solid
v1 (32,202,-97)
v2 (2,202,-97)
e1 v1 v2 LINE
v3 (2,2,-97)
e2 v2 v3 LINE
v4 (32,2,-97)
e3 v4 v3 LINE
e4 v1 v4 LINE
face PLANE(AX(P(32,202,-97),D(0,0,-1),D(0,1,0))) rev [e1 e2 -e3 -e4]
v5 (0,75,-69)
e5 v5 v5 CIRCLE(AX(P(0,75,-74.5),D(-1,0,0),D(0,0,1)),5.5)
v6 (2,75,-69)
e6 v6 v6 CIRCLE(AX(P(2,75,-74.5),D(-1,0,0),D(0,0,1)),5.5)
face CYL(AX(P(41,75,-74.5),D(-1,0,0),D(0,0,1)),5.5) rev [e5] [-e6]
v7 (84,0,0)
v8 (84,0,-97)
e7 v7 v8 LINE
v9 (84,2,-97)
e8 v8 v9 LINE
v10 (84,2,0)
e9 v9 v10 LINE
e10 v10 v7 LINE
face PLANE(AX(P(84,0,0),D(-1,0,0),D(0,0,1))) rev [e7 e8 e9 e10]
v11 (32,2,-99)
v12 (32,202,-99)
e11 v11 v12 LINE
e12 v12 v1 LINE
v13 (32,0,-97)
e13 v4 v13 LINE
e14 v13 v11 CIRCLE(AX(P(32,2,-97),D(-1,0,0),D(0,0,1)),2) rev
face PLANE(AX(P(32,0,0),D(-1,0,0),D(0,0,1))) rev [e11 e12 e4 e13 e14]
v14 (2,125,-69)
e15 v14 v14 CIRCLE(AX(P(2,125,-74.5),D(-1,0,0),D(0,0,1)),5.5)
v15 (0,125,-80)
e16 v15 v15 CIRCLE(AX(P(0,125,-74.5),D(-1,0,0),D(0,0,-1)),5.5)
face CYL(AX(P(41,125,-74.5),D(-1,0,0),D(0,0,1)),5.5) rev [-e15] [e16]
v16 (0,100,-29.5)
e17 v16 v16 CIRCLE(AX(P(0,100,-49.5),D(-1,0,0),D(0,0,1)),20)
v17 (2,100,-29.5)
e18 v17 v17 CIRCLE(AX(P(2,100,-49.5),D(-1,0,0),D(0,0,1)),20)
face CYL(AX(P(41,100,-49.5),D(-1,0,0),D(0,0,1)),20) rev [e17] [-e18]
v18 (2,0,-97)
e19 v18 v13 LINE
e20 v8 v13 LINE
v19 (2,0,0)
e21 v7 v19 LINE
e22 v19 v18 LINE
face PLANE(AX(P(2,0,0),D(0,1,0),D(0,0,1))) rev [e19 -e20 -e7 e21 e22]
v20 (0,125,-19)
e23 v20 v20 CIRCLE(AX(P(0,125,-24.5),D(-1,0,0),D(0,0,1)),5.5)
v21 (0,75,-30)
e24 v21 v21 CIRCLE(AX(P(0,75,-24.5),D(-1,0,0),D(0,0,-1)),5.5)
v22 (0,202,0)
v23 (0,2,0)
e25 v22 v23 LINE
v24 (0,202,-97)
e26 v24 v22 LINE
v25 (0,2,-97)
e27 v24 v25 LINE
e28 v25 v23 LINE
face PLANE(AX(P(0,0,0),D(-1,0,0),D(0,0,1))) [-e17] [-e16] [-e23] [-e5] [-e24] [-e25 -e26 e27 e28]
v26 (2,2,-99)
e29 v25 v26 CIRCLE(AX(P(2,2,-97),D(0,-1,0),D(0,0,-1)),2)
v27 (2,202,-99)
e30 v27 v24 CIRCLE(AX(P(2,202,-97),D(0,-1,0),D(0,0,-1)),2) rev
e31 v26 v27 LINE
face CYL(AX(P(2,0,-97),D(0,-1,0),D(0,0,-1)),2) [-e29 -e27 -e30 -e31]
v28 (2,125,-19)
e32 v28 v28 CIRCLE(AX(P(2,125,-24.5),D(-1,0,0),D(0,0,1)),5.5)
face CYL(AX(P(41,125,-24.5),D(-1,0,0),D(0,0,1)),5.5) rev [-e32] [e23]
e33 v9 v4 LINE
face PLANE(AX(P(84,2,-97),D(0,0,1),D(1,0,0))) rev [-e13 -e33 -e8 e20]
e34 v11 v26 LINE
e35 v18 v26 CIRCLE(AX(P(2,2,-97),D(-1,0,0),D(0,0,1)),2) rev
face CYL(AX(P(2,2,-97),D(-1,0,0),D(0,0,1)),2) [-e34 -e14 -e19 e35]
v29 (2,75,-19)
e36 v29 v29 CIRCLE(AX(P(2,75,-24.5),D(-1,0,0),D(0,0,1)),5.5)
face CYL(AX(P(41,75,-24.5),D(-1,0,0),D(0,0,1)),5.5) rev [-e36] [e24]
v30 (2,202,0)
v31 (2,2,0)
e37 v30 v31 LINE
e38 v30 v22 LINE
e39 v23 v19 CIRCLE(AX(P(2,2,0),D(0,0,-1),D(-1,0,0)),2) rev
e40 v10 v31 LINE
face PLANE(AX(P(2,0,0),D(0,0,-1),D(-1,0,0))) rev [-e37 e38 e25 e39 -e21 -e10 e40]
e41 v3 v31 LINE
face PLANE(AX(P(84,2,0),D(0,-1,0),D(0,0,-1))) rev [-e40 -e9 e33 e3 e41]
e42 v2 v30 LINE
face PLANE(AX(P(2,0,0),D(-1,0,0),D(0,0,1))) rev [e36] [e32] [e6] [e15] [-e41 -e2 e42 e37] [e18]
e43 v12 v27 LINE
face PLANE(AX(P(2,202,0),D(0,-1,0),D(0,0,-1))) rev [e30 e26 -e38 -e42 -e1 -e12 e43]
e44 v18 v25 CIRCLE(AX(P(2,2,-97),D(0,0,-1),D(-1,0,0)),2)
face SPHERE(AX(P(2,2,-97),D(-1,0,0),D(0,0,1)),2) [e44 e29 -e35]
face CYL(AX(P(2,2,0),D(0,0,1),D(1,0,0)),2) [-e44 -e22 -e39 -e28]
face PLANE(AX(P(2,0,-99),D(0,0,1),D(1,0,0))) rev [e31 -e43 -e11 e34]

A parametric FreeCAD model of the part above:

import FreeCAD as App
import Part
import Sketcher


def edges_at(feature, points):
    """Names of the edges that pass closest to the given points."""
    edges = feature.Shape.Edges
    near = lambda p: min(range(len(edges)), key=lambda i: edges[i].distToShape(Part.Vertex(*p))[0])
    return sorted({f"Edge{near(p) + 1}" for p in points})

doc = App.newDocument("Part")
params = doc.addObject("Spreadsheet::Sheet", "Params")
for row, (alias, value) in enumerate([
    ("sketch1_width", "202 mm"),
    ("sketch1_height", "99 mm"),
    ("pad1_length", "2 mm"),
    ("sketch2_width", "2 mm"),
    ("sketch2_height", "97 mm"),
    ("pad2_length", "82 mm"),
    ("sketch3_width", "202 mm"),
    ("sketch3_height", "2 mm"),
    ("pad3_length", "30 mm"),
    ("fillet_radius", "2 mm"),
    ("sketch4_diameter", "40 mm"),
    ("sketch4_diameter2", "11 mm"),
    ("pocket1_length", "41 mm"),
], start=1):
    params.set(f"A{row}", alias)
    params.set(f"B{row}", "=" + value)
    params.setAlias(f"B{row}", alias)

body = doc.addObject("PartDesign::Body", "Body")

sketch1 = body.newObject("Sketcher::SketchObject", "Sketch")
sketch1.AttachmentSupport = (doc.getObject("YZ_Plane"), [""])
sketch1.MapMode = "FlatFace"
sketch1.addGeometry(Part.LineSegment(App.Vector(202, 0, 0), App.Vector(0, 0, 0)), False)
sketch1.addGeometry(Part.LineSegment(App.Vector(0, 0, 0), App.Vector(0, -99, 0)), False)
sketch1.addGeometry(Part.LineSegment(App.Vector(0, -99, 0), App.Vector(202, -99, 0)), False)
sketch1.addGeometry(Part.LineSegment(App.Vector(202, -99, 0), App.Vector(202, 0, 0)), False)
sketch1.addConstraint(Sketcher.Constraint("Coincident", 0, 2, 1, 1))
sketch1.addConstraint(Sketcher.Constraint("Coincident", 1, 2, 2, 1))
sketch1.addConstraint(Sketcher.Constraint("Coincident", 2, 2, 3, 1))
sketch1.addConstraint(Sketcher.Constraint("Coincident", 3, 2, 0, 1))
sketch1.addConstraint(Sketcher.Constraint("Horizontal", 0))
sketch1.addConstraint(Sketcher.Constraint("Vertical", 1))
sketch1.addConstraint(Sketcher.Constraint("Horizontal", 2))
sketch1.addConstraint(Sketcher.Constraint("Vertical", 3))
sketch1.addConstraint(Sketcher.Constraint("Coincident", 0, 2, -1, 1))
sketch1.addConstraint(Sketcher.Constraint("DistanceX", 0, 2, 0, 1, 202.0))
sketch1.addConstraint(Sketcher.Constraint("DistanceY", 1, 2, 1, 1, 99.0))
sketch1.setExpression("Constraints[9]", "Params.sketch1_width")
sketch1.setExpression("Constraints[10]", "Params.sketch1_height")
pad1 = body.newObject("PartDesign::Pad", "Pad")
pad1.Profile = sketch1
pad1.setExpression("Length", "Params.pad1_length")

sketch2 = body.newObject("Sketcher::SketchObject", "Sketch001")
sketch2.AttachmentSupport = (doc.getObject("YZ_Plane"), [""])
sketch2.MapMode = "FlatFace"
sketch2.AttachmentOffset = App.Placement(App.Vector(0, 0, 2), App.Rotation())
sketch2.addGeometry(Part.LineSegment(App.Vector(2, 0, 0), App.Vector(0, 0, 0)), False)
sketch2.addGeometry(Part.LineSegment(App.Vector(0, 0, 0), App.Vector(0, -97, 0)), False)
sketch2.addGeometry(Part.LineSegment(App.Vector(0, -97, 0), App.Vector(2, -97, 0)), False)
sketch2.addGeometry(Part.LineSegment(App.Vector(2, -97, 0), App.Vector(2, 0, 0)), False)
sketch2.addConstraint(Sketcher.Constraint("Coincident", 0, 2, 1, 1))
sketch2.addConstraint(Sketcher.Constraint("Coincident", 1, 2, 2, 1))
sketch2.addConstraint(Sketcher.Constraint("Coincident", 2, 2, 3, 1))
sketch2.addConstraint(Sketcher.Constraint("Coincident", 3, 2, 0, 1))
sketch2.addConstraint(Sketcher.Constraint("Horizontal", 0))
sketch2.addConstraint(Sketcher.Constraint("Vertical", 1))
sketch2.addConstraint(Sketcher.Constraint("Horizontal", 2))
sketch2.addConstraint(Sketcher.Constraint("Vertical", 3))
sketch2.addConstraint(Sketcher.Constraint("Coincident", 0, 2, -1, 1))
sketch2.addConstraint(Sketcher.Constraint("DistanceX", 0, 2, 0, 1, 2.0))
sketch2.addConstraint(Sketcher.Constraint("DistanceY", 1, 2, 1, 1, 97.0))
sketch2.setExpression("Constraints[9]", "Params.sketch2_width")
sketch2.setExpression("Constraints[10]", "Params.sketch2_height")
pad2 = body.newObject("PartDesign::Pad", "Pad001")
pad2.Profile = sketch2
pad2.setExpression("Length", "Params.pad2_length")

sketch3 = body.newObject("Sketcher::SketchObject", "Sketch002")
sketch3.AttachmentSupport = (doc.getObject("YZ_Plane"), [""])
sketch3.MapMode = "FlatFace"
sketch3.AttachmentOffset = App.Placement(App.Vector(0, 0, 2), App.Rotation())
sketch3.addGeometry(Part.LineSegment(App.Vector(202, -97, 0), App.Vector(0, -97, 0)), False)
sketch3.addGeometry(Part.LineSegment(App.Vector(0, -97, 0), App.Vector(0, -99, 0)), False)
sketch3.addGeometry(Part.LineSegment(App.Vector(0, -99, 0), App.Vector(202, -99, 0)), False)
sketch3.addGeometry(Part.LineSegment(App.Vector(202, -99, 0), App.Vector(202, -97, 0)), False)
sketch3.addConstraint(Sketcher.Constraint("Coincident", 0, 2, 1, 1))
sketch3.addConstraint(Sketcher.Constraint("Coincident", 1, 2, 2, 1))
sketch3.addConstraint(Sketcher.Constraint("Coincident", 2, 2, 3, 1))
sketch3.addConstraint(Sketcher.Constraint("Coincident", 3, 2, 0, 1))
sketch3.addConstraint(Sketcher.Constraint("Horizontal", 0))
sketch3.addConstraint(Sketcher.Constraint("Vertical", 1))
sketch3.addConstraint(Sketcher.Constraint("Horizontal", 2))
sketch3.addConstraint(Sketcher.Constraint("Vertical", 3))
sketch3.addConstraint(Sketcher.Constraint("PointOnObject", 0, 2, -2))
sketch3.addConstraint(Sketcher.Constraint("DistanceX", 0, 2, 0, 1, 202.0))
sketch3.addConstraint(Sketcher.Constraint("DistanceY", 1, 2, 1, 1, 2.0))
sketch3.addConstraint(Sketcher.Constraint("DistanceY", 0, 2, -1, 1, 97.0))
sketch3.setExpression("Constraints[9]", "Params.sketch3_width")
sketch3.setExpression("Constraints[10]", "Params.sketch3_height")
pad3 = body.newObject("PartDesign::Pad", "Pad002")
pad3.Profile = sketch3
pad3.setExpression("Length", "Params.pad3_length")
doc.recompute()

fillet = body.newObject("PartDesign::Fillet", "Fillet")
fillet.Base = (pad3, edges_at(pad3, [(16, 0, -99), (0, 0, -49.5), (0, 101, -99)]))
fillet.setExpression("Radius", "Params.fillet_radius")

sketch4 = body.newObject("Sketcher::SketchObject", "Sketch003")
sketch4.AttachmentSupport = (doc.getObject("YZ_Plane"), [""])
sketch4.MapMode = "FlatFace"
sketch4.addGeometry(Part.Circle(App.Vector(100, -50, 0), App.Vector(0, 0, 1), 20), False)
sketch4.addGeometry(Part.Circle(App.Vector(125, -24, 0), App.Vector(0, 0, 1), 6), False)
sketch4.addGeometry(Part.Circle(App.Vector(125, -74, 0), App.Vector(0, 0, 1), 6), False)
sketch4.addGeometry(Part.Circle(App.Vector(75, -24, 0), App.Vector(0, 0, 1), 6), False)
sketch4.addGeometry(Part.Circle(App.Vector(75, -74, 0), App.Vector(0, 0, 1), 6), False)
sketch4.addConstraint(Sketcher.Constraint("Equal", 1, 2))
sketch4.addConstraint(Sketcher.Constraint("Equal", 2, 3))
sketch4.addConstraint(Sketcher.Constraint("Equal", 3, 4))
sketch4.addConstraint(Sketcher.Constraint("Horizontal", 1, 3, 3, 3))
sketch4.addConstraint(Sketcher.Constraint("Horizontal", 2, 3, 4, 3))
sketch4.addConstraint(Sketcher.Constraint("Vertical", 1, 3, 2, 3))
sketch4.addConstraint(Sketcher.Constraint("Vertical", 3, 3, 4, 3))
sketch4.addConstraint(Sketcher.Constraint("Diameter", 0, 40.0))
sketch4.addConstraint(Sketcher.Constraint("Diameter", 1, 11.0))
sketch4.addConstraint(Sketcher.Constraint("DistanceX", -1, 1, 0, 3, 100.0))
sketch4.addConstraint(Sketcher.Constraint("DistanceX", -1, 1, 1, 3, 125.0))
sketch4.addConstraint(Sketcher.Constraint("DistanceX", -1, 1, 3, 3, 75.0))
sketch4.addConstraint(Sketcher.Constraint("DistanceY", 0, 3, 1, 3, 25.0))
sketch4.addConstraint(Sketcher.Constraint("DistanceY", 2, 3, 0, 3, 25.0))
sketch4.addConstraint(Sketcher.Constraint("DistanceY", 0, 3, -1, 1, 49.5))
sketch4.setExpression("Constraints[7]", "Params.sketch4_diameter")
sketch4.setExpression("Constraints[8]", "Params.sketch4_diameter2")
pocket1 = body.newObject("PartDesign::Pocket", "Pocket")
pocket1.Profile = sketch4
pocket1.setExpression("Length", "Params.pocket1_length")
pocket1.Reversed = True

doc.recompute()
